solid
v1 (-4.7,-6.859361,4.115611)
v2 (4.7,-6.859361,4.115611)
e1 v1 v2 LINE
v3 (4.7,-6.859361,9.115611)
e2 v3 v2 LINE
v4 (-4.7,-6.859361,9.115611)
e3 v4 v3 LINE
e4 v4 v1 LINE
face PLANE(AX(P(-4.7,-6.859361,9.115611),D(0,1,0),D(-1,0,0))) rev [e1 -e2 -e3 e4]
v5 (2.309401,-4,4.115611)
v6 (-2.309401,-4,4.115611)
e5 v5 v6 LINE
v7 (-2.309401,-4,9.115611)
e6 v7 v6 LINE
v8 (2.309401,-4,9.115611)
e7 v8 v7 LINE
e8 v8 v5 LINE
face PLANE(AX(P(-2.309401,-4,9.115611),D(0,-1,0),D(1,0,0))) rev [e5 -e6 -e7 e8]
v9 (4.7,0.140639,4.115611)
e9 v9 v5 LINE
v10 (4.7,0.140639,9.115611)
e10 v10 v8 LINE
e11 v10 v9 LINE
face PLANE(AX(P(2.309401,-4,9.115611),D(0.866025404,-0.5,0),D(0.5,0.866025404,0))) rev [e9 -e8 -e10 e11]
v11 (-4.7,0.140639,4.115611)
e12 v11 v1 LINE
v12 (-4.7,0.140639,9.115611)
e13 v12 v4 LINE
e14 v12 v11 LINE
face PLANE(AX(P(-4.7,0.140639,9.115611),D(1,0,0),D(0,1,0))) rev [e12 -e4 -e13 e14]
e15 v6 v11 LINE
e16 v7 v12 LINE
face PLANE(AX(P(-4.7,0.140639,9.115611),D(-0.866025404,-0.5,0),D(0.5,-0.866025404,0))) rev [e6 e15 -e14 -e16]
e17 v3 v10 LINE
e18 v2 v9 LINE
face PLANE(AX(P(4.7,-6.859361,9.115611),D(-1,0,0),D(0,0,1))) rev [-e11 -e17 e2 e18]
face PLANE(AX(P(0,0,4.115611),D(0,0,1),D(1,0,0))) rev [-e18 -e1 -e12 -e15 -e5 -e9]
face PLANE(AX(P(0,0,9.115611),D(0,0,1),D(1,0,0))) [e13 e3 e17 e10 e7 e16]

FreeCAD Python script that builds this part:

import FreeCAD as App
import Part
import Sketcher
Q = App.Units.Quantity

doc = App.newDocument("Part")
body = doc.addObject("PartDesign::Body", "Body")

# Sketch on XY plane
sketch1 = body.newObject("Sketcher::SketchObject", "Sketch")
sketch1.AttachmentSupport = (doc.getObject("XY_Plane"), [""])
sketch1.MapMode = "FlatFace"
sketch1.AttachmentOffset = App.Placement(App.Vector(0, 0, 4.115611), App.Rotation())
sketch1.addGeometry([
    Part.LineSegment(App.Vector(-4.7, 0.1, 0), App.Vector(-4.7, -6.9, 0)),  # 0
    Part.LineSegment(App.Vector(-4.7, -6.9, 0), App.Vector(4.7, -6.9, 0)),  # 1
    Part.LineSegment(App.Vector(4.7, -6.9, 0), App.Vector(4.7, 0.1, 0)),  # 2
    Part.LineSegment(App.Vector(4.7, 0.1, 0), App.Vector(2.3, -4, 0)),  # 3
    Part.LineSegment(App.Vector(2.3, -4, 0), App.Vector(-2.3, -4, 0)),  # 4
    Part.LineSegment(App.Vector(-2.3, -4, 0), App.Vector(-4.7, 0.1, 0)),  # 5
], False)
sketch1.addConstraint([
    Sketcher.Constraint("Coincident", 0, 2, 1, 1),
    Sketcher.Constraint("Coincident", 1, 2, 2, 1),
    Sketcher.Constraint("Coincident", 2, 2, 3, 1),
    Sketcher.Constraint("Coincident", 3, 2, 4, 1),
    Sketcher.Constraint("Coincident", 4, 2, 5, 1),
    Sketcher.Constraint("Coincident", 5, 2, 0, 1),
    Sketcher.Constraint("Vertical", 0),
    Sketcher.Constraint("Horizontal", 1),
    Sketcher.Constraint("Vertical", 2),
    Sketcher.Constraint("Horizontal", 4),
    Sketcher.Constraint("Symmetric", 2, 2, 5, 2, -2),
    Sketcher.Constraint("Equal", 3, 5),
    Sketcher.Constraint("DistanceY", 0, 2, 0, 1, 7.0),
    Sketcher.Constraint("Angle", 3, Q("-120 deg")),
    Sketcher.Constraint("DistanceX", 1, 1, 1, 2, 9.4),
    Sketcher.Constraint("DistanceY", 3, 2, -1, 1, 4.0),
    Sketcher.Constraint("DistanceX", -1, 1, 3, 2, 2.309401),
])
pad1 = body.newObject("PartDesign::Pad", "Pad")
pad1.Profile = sketch1
pad1.Length = 5

doc.recompute()
